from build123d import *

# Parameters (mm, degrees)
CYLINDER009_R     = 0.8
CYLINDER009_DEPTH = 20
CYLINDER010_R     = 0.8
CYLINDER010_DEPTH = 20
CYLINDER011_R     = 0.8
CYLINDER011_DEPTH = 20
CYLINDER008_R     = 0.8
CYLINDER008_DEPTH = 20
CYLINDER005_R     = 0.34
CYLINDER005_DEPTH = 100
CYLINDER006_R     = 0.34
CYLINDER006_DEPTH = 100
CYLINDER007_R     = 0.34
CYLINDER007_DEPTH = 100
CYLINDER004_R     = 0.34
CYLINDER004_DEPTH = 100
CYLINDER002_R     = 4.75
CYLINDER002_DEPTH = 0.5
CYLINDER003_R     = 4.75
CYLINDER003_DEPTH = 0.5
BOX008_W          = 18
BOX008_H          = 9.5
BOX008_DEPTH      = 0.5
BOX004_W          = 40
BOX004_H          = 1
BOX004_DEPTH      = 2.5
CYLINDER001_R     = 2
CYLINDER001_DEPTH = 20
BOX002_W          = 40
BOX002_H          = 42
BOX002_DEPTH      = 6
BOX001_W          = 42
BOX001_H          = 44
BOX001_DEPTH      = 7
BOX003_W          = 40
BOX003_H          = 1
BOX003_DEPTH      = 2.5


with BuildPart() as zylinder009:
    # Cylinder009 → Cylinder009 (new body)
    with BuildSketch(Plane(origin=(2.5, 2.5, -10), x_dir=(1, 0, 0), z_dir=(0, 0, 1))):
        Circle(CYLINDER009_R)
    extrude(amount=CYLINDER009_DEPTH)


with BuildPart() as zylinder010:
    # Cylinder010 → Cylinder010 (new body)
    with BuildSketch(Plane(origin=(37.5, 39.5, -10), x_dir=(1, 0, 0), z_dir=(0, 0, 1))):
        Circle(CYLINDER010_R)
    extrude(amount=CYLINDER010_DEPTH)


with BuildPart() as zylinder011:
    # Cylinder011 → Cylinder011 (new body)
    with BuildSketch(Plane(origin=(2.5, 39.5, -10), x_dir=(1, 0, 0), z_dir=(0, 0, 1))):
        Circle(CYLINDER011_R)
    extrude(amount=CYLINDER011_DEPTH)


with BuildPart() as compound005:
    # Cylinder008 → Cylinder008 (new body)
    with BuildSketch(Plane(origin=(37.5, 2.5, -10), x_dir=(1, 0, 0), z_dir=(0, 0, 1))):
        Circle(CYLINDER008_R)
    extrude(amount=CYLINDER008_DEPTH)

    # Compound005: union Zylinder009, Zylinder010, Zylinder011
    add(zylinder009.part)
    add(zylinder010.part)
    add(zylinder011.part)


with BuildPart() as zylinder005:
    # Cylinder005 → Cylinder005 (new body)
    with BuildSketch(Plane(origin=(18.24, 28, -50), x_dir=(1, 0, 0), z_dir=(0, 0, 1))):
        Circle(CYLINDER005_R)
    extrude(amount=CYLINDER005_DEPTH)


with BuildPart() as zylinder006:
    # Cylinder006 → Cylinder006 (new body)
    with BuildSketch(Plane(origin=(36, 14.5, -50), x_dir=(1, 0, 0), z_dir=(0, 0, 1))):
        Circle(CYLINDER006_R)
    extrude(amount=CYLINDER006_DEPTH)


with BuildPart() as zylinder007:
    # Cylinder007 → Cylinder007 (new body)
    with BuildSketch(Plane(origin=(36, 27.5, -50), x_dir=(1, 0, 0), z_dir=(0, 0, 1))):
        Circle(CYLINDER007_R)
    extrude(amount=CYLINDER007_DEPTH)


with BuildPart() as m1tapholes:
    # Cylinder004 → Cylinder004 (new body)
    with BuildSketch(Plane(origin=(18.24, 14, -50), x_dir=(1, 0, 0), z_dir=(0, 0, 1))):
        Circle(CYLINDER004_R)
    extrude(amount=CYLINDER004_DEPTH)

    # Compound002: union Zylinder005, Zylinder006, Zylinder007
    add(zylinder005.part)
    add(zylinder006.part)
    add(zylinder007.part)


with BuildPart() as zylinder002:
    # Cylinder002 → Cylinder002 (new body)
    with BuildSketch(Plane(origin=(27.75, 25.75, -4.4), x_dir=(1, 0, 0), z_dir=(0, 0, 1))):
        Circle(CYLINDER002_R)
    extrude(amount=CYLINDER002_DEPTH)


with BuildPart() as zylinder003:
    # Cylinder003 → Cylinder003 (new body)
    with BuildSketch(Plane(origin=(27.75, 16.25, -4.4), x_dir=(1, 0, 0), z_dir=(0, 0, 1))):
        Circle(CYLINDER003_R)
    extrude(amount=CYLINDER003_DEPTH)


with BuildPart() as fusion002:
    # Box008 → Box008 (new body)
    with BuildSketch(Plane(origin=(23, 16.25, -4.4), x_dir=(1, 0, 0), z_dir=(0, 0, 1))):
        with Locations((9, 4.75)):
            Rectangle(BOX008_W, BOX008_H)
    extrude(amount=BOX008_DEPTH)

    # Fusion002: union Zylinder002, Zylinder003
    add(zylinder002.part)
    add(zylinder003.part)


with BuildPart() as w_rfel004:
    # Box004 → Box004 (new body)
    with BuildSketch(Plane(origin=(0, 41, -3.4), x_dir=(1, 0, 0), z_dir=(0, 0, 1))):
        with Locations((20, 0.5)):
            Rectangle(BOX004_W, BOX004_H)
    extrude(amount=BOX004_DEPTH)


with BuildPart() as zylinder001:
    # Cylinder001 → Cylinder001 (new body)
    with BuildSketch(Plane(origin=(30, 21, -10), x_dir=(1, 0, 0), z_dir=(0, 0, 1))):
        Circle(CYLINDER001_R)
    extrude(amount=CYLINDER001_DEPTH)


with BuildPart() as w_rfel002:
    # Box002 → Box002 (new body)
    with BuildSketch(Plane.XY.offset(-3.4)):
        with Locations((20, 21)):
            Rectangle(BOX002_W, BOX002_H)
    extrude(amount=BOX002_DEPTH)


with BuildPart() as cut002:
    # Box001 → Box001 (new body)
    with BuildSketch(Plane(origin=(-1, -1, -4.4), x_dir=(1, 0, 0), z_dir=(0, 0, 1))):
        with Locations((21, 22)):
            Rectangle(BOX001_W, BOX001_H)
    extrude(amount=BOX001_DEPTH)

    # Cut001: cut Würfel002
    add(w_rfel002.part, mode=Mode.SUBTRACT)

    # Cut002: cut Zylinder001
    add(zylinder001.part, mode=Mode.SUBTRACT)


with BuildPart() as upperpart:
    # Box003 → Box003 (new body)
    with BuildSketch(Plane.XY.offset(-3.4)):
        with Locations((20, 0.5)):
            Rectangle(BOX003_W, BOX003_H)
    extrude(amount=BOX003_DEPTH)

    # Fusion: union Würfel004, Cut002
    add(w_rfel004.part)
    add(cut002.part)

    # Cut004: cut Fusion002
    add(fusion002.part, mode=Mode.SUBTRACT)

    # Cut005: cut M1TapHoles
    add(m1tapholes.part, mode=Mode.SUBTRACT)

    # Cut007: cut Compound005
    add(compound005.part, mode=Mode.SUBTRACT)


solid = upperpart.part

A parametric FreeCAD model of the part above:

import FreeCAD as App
import Part
import Sketcher
Q = App.Units.Quantity


def add_polygon(sketch, points):
    """Adds a closed chain of lines whose ends are joined by coincident constraints."""
    first, n = sketch.GeometryCount, len(points)
    for a, b in zip(points, points[1:] + points[:1]):
        sketch.addGeometry(Part.LineSegment(App.Vector(*a, 0), App.Vector(*b, 0)), False)
    for i in range(n):
        sketch.addConstraint(Sketcher.Constraint("Coincident", first + i, 2, first + (i + 1) % n, 1))

doc = App.newDocument("Part")
params = doc.addObject("Spreadsheet::Sheet", "Params")
for row, (alias, value) in enumerate([
    ("sketch1_diameter", "1.6 mm"),
    ("pad1_length", "20 mm"),
    ("sketch2_diameter", "1.6 mm"),
    ("pad2_length", "20 mm"),
    ("sketch3_diameter", "1.6 mm"),
    ("pad3_length", "20 mm"),
    ("sketch4_diameter", "1.6 mm"),
    ("pad4_length", "20 mm"),
    ("sketch5_diameter", "0.68 mm"),
    ("pad5_length", "100 mm"),
    ("sketch6_diameter", "0.68 mm"),
    ("pad6_length", "100 mm"),
    ("sketch7_diameter", "0.68 mm"),
    ("pad7_length", "100 mm"),
    ("sketch8_diameter", "0.68 mm"),
    ("pad8_length", "100 mm"),
    ("sketch9_diameter", "9.5 mm"),
    ("pad9_length", "0.5 mm"),
    ("sketch10_diameter", "9.5 mm"),
    ("pad10_length", "0.5 mm"),
    ("sketch11_width", "18 mm"),
    ("sketch11_height", "9.5 mm"),
    ("pad11_length", "0.5 mm"),
    ("sketch12_width", "40 mm"),
    ("sketch12_height", "1 mm"),
    ("pad12_length", "2.5 mm"),
    ("sketch13_diameter", "4 mm"),
    ("pad13_length", "20 mm"),
    ("sketch14_width", "40 mm"),
    ("sketch14_height", "42 mm"),
    ("pad14_length", "6 mm"),
    ("sketch15_width", "42 mm"),
    ("sketch15_height", "44 mm"),
    ("pad15_length", "7 mm"),
    ("sketch16_width", "40 mm"),
    ("sketch16_height", "1 mm"),
    ("pad16_length", "2.5 mm"),
], start=1):
    params.set(f"A{row}", alias)
    params.set(f"B{row}", "=" + value)
    params.setAlias(f"B{row}", alias)

body = doc.addObject("PartDesign::Body", "Body")

sketch1 = body.newObject("Sketcher::SketchObject", "Sketch")
sketch1.AttachmentSupport = (doc.getObject("XY_Plane"), [""])
sketch1.MapMode = "FlatFace"
sketch1.AttachmentOffset = App.Placement(App.Vector(0, 0, -10), App.Rotation())
sketch1.addGeometry(Part.Circle(App.Vector(2.5, 2.5, 0), App.Vector(0, 0, 1), 0.8), False)
sketch1.addConstraint([
    Sketcher.Constraint("Diameter", 0, Q("1.6 mm")),
    Sketcher.Constraint("DistanceX", -1, 1, 0, 3, Q("2.5 mm")),
    Sketcher.Constraint("DistanceY", -1, 1, 0, 3, Q("2.5 mm")),
])
sketch1.setExpression("Constraints[0]", "Params.sketch1_diameter")
pad1 = body.newObject("PartDesign::Pad", "Pad")
pad1.Profile = sketch1
pad1.setExpression("Length", "Params.pad1_length")
body2 = doc.addObject("PartDesign::Body", "Body001")

sketch2 = body2.newObject("Sketcher::SketchObject", "Sketch001")
sketch2.AttachmentSupport = (doc.getObject("XY_Plane001"), [""])
sketch2.MapMode = "FlatFace"
sketch2.AttachmentOffset = App.Placement(App.Vector(0, 0, -10), App.Rotation())
sketch2.addGeometry(Part.Circle(App.Vector(37.5, 39.5, 0), App.Vector(0, 0, 1), 0.8), False)
sketch2.addConstraint([
    Sketcher.Constraint("Diameter", 0, Q("1.6 mm")),
    Sketcher.Constraint("DistanceX", -1, 1, 0, 3, Q("37.5 mm")),
    Sketcher.Constraint("DistanceY", -1, 1, 0, 3, Q("39.5 mm")),
])
sketch2.setExpression("Constraints[0]", "Params.sketch2_diameter")
pad2 = body2.newObject("PartDesign::Pad", "Pad001")
pad2.Profile = sketch2
pad2.setExpression("Length", "Params.pad2_length")
body3 = doc.addObject("PartDesign::Body", "Body002")

sketch3 = body3.newObject("Sketcher::SketchObject", "Sketch002")
sketch3.AttachmentSupport = (doc.getObject("XY_Plane002"), [""])
sketch3.MapMode = "FlatFace"
sketch3.AttachmentOffset = App.Placement(App.Vector(0, 0, -10), App.Rotation())
sketch3.addGeometry(Part.Circle(App.Vector(2.5, 39.5, 0), App.Vector(0, 0, 1), 0.8), False)
sketch3.addConstraint([
    Sketcher.Constraint("Diameter", 0, Q("1.6 mm")),
    Sketcher.Constraint("DistanceX", -1, 1, 0, 3, Q("2.5 mm")),
    Sketcher.Constraint("DistanceY", -1, 1, 0, 3, Q("39.5 mm")),
])
sketch3.setExpression("Constraints[0]", "Params.sketch3_diameter")
pad3 = body3.newObject("PartDesign::Pad", "Pad002")
pad3.Profile = sketch3
pad3.setExpression("Length", "Params.pad3_length")
body4 = doc.addObject("PartDesign::Body", "Body003")
body4.AllowCompound = True

sketch4 = body4.newObject("Sketcher::SketchObject", "Sketch003")
sketch4.AttachmentSupport = (doc.getObject("XY_Plane003"), [""])
sketch4.MapMode = "FlatFace"
sketch4.AttachmentOffset = App.Placement(App.Vector(0, 0, -10), App.Rotation())
sketch4.addGeometry(Part.Circle(App.Vector(37.5, 2.5, 0), App.Vector(0, 0, 1), 0.8), False)
sketch4.addConstraint([
    Sketcher.Constraint("Diameter", 0, Q("1.6 mm")),
    Sketcher.Constraint("DistanceX", -1, 1, 0, 3, Q("37.5 mm")),
    Sketcher.Constraint("DistanceY", -1, 1, 0, 3, Q("2.5 mm")),
])
sketch4.setExpression("Constraints[0]", "Params.sketch4_diameter")
pad4 = body4.newObject("PartDesign::Pad", "Pad003")
pad4.Profile = sketch4
pad4.setExpression("Length", "Params.pad4_length")
doc.recompute()

boolean = body4.newObject("PartDesign::Boolean", "Boolean")
boolean.Type = "Fuse"
boolean.addObjects([body])
doc.recompute()

boolean2 = body4.newObject("PartDesign::Boolean", "Boolean001")
boolean2.Type = "Fuse"
boolean2.addObjects([body2])
doc.recompute()

boolean3 = body4.newObject("PartDesign::Boolean", "Boolean002")
boolean3.Type = "Fuse"
boolean3.addObjects([body3])
body5 = doc.addObject("PartDesign::Body", "Body004")

sketch5 = body5.newObject("Sketcher::SketchObject", "Sketch004")
sketch5.AttachmentSupport = (doc.getObject("XY_Plane004"), [""])
sketch5.MapMode = "FlatFace"
sketch5.AttachmentOffset = App.Placement(App.Vector(0, 0, -50), App.Rotation())
sketch5.addGeometry(Part.Circle(App.Vector(18.24, 28, 0), App.Vector(0, 0, 1), 0.34), False)
sketch5.addConstraint([
    Sketcher.Constraint("Diameter", 0, Q("0.68 mm")),
    Sketcher.Constraint("DistanceY", -1, 1, 0, 3, Q("28 mm")),
    Sketcher.Constraint("DistanceX", -1, 1, 0, 3, Q("18.24 mm")),
])
sketch5.setExpression("Constraints[0]", "Params.sketch5_diameter")
pad5 = body5.newObject("PartDesign::Pad", "Pad004")
pad5.Profile = sketch5
pad5.setExpression("Length", "Params.pad5_length")
body6 = doc.addObject("PartDesign::Body", "Body005")

sketch6 = body6.newObject("Sketcher::SketchObject", "Sketch005")
sketch6.AttachmentSupport = (doc.getObject("XY_Plane005"), [""])
sketch6.MapMode = "FlatFace"
sketch6.AttachmentOffset = App.Placement(App.Vector(0, 0, -50), App.Rotation())
sketch6.addGeometry(Part.Circle(App.Vector(36, 14.5, 0), App.Vector(0, 0, 1), 0.34), False)
sketch6.addConstraint([
    Sketcher.Constraint("Diameter", 0, Q("0.68 mm")),
    Sketcher.Constraint("DistanceX", -1, 1, 0, 3, Q("36 mm")),
    Sketcher.Constraint("DistanceY", -1, 1, 0, 3, Q("14.5 mm")),
])
sketch6.setExpression("Constraints[0]", "Params.sketch6_diameter")
pad6 = body6.newObject("PartDesign::Pad", "Pad005")
pad6.Profile = sketch6
pad6.setExpression("Length", "Params.pad6_length")
body7 = doc.addObject("PartDesign::Body", "Body006")

sketch7 = body7.newObject("Sketcher::SketchObject", "Sketch006")
sketch7.AttachmentSupport = (doc.getObject("XY_Plane006"), [""])
sketch7.MapMode = "FlatFace"
sketch7.AttachmentOffset = App.Placement(App.Vector(0, 0, -50), App.Rotation())
sketch7.addGeometry(Part.Circle(App.Vector(36, 27.5, 0), App.Vector(0, 0, 1), 0.34), False)
sketch7.addConstraint([
    Sketcher.Constraint("Diameter", 0, Q("0.68 mm")),
    Sketcher.Constraint("DistanceX", -1, 1, 0, 3, Q("36 mm")),
    Sketcher.Constraint("DistanceY", -1, 1, 0, 3, Q("27.5 mm")),
])
sketch7.setExpression("Constraints[0]", "Params.sketch7_diameter")
pad7 = body7.newObject("PartDesign::Pad", "Pad006")
pad7.Profile = sketch7
pad7.setExpression("Length", "Params.pad7_length")
body8 = doc.addObject("PartDesign::Body", "Body007")
body8.AllowCompound = True

sketch8 = body8.newObject("Sketcher::SketchObject", "Sketch007")
sketch8.AttachmentSupport = (doc.getObject("XY_Plane007"), [""])
sketch8.MapMode = "FlatFace"
sketch8.AttachmentOffset = App.Placement(App.Vector(0, 0, -50), App.Rotation())
sketch8.addGeometry(Part.Circle(App.Vector(18.24, 14, 0), App.Vector(0, 0, 1), 0.34), False)
sketch8.addConstraint([
    Sketcher.Constraint("Diameter", 0, Q("0.68 mm")),
    Sketcher.Constraint("DistanceY", -1, 1, 0, 3, Q("14 mm")),
    Sketcher.Constraint("DistanceX", -1, 1, 0, 3, Q("18.24 mm")),
])
sketch8.setExpression("Constraints[0]", "Params.sketch8_diameter")
pad8 = body8.newObject("PartDesign::Pad", "Pad007")
pad8.Profile = sketch8
pad8.setExpression("Length", "Params.pad8_length")
doc.recompute()

boolean4 = body8.newObject("PartDesign::Boolean", "Boolean003")
boolean4.Type = "Fuse"
boolean4.addObjects([body5])
doc.recompute()

boolean5 = body8.newObject("PartDesign::Boolean", "Boolean004")
boolean5.Type = "Fuse"
boolean5.addObjects([body6])
doc.recompute()

boolean6 = body8.newObject("PartDesign::Boolean", "Boolean005")
boolean6.Type = "Fuse"
boolean6.addObjects([body7])
body9 = doc.addObject("PartDesign::Body", "Body008")

sketch9 = body9.newObject("Sketcher::SketchObject", "Sketch008")
sketch9.AttachmentSupport = (doc.getObject("XY_Plane008"), [""])
sketch9.MapMode = "FlatFace"
sketch9.AttachmentOffset = App.Placement(App.Vector(0, 0, -4.4), App.Rotation())
sketch9.addGeometry(Part.Circle(App.Vector(27.75, 25.75, 0), App.Vector(0, 0, 1), 4.75), False)
sketch9.addConstraint([
    Sketcher.Constraint("Diameter", 0, Q("9.5 mm")),
    Sketcher.Constraint("DistanceX", -1, 1, 0, 3, Q("27.75 mm")),
    Sketcher.Constraint("DistanceY", -1, 1, 0, 3, Q("25.75 mm")),
])
sketch9.setExpression("Constraints[0]", "Params.sketch9_diameter")
pad9 = body9.newObject("PartDesign::Pad", "Pad008")
pad9.Profile = sketch9
pad9.setExpression("Length", "Params.pad9_length")
body10 = doc.addObject("PartDesign::Body", "Body009")

sketch10 = body10.newObject("Sketcher::SketchObject", "Sketch009")
sketch10.AttachmentSupport = (doc.getObject("XY_Plane009"), [""])
sketch10.MapMode = "FlatFace"
sketch10.AttachmentOffset = App.Placement(App.Vector(0, 0, -4.4), App.Rotation())
sketch10.addGeometry(Part.Circle(App.Vector(27.75, 16.25, 0), App.Vector(0, 0, 1), 4.75), False)
sketch10.addConstraint([
    Sketcher.Constraint("Diameter", 0, Q("9.5 mm")),
    Sketcher.Constraint("DistanceX", -1, 1, 0, 3, Q("27.75 mm")),
    Sketcher.Constraint("DistanceY", -1, 1, 0, 3, Q("16.25 mm")),
])
sketch10.setExpression("Constraints[0]", "Params.sketch10_diameter")
pad10 = body10.newObject("PartDesign::Pad", "Pad009")
pad10.Profile = sketch10
pad10.setExpression("Length", "Params.pad10_length")
body11 = doc.addObject("PartDesign::Body", "Body010")

sketch11 = body11.newObject("Sketcher::SketchObject", "Sketch010")
sketch11.AttachmentSupport = (doc.getObject("XY_Plane010"), [""])
sketch11.MapMode = "FlatFace"
sketch11.AttachmentOffset = App.Placement(App.Vector(0, 0, -4.4), App.Rotation())
add_polygon(sketch11, [(23, 25.75), (23, 16.25), (41, 16.25), (41, 25.75)])
sketch11.addConstraint([
    Sketcher.Constraint("Vertical", 0),
    Sketcher.Constraint("Horizontal", 1),
    Sketcher.Constraint("Vertical", 2),
    Sketcher.Constraint("Horizontal", 3),
    Sketcher.Constraint("DistanceX", 1, 1, 1, 2, Q("18 mm")),
    Sketcher.Constraint("DistanceY", 0, 2, 0, 1, Q("9.5 mm")),
    Sketcher.Constraint("DistanceX", -1, 1, 0, 2, Q("23 mm")),
    Sketcher.Constraint("DistanceY", -1, 1, 0, 2, Q("16.25 mm")),
])
sketch11.setExpression("Constraints[8]", "Params.sketch11_width")
sketch11.setExpression("Constraints[9]", "Params.sketch11_height")
pad11 = body11.newObject("PartDesign::Pad", "Pad010")
pad11.Profile = sketch11
pad11.setExpression("Length", "Params.pad11_length")
doc.recompute()

boolean7 = body11.newObject("PartDesign::Boolean", "Boolean006")
boolean7.Type = "Fuse"
boolean7.addObjects([body9])
doc.recompute()

boolean8 = body11.newObject("PartDesign::Boolean", "Boolean007")
boolean8.Type = "Fuse"
boolean8.addObjects([body10])
body12 = doc.addObject("PartDesign::Body", "Body011")

sketch12 = body12.newObject("Sketcher::SketchObject", "Sketch011")
sketch12.AttachmentSupport = (doc.getObject("XY_Plane011"), [""])
sketch12.MapMode = "FlatFace"
sketch12.AttachmentOffset = App.Placement(App.Vector(0, 0, -3.4), App.Rotation())
add_polygon(sketch12, [(0, 42), (0, 41), (40, 41), (40, 42)])
sketch12.addConstraint([
    Sketcher.Constraint("Vertical", 0),
    Sketcher.Constraint("Horizontal", 1),
    Sketcher.Constraint("Vertical", 2),
    Sketcher.Constraint("Horizontal", 3),
    Sketcher.Constraint("PointOnObject", 0, 2, -2),
    Sketcher.Constraint("DistanceX", 1, 1, 1, 2, Q("40 mm")),
    Sketcher.Constraint("DistanceY", 0, 2, 0, 1, Q("1 mm")),
    Sketcher.Constraint("DistanceY", -1, 1, 0, 2, Q("41 mm")),
])
sketch12.setExpression("Constraints[9]", "Params.sketch12_width")
sketch12.setExpression("Constraints[10]", "Params.sketch12_height")
pad12 = body12.newObject("PartDesign::Pad", "Pad011")
pad12.Profile = sketch12
pad12.setExpression("Length", "Params.pad12_length")
body13 = doc.addObject("PartDesign::Body", "Body012")

sketch13 = body13.newObject("Sketcher::SketchObject", "Sketch012")
sketch13.AttachmentSupport = (doc.getObject("XY_Plane012"), [""])
sketch13.MapMode = "FlatFace"
sketch13.AttachmentOffset = App.Placement(App.Vector(0, 0, -10), App.Rotation())
sketch13.addGeometry(Part.Circle(App.Vector(30, 21, 0), App.Vector(0, 0, 1), 2), False)
sketch13.addConstraint([
    Sketcher.Constraint("Diameter", 0, Q("4 mm")),
    Sketcher.Constraint("DistanceX", -1, 1, 0, 3, Q("30 mm")),
    Sketcher.Constraint("DistanceY", -1, 1, 0, 3, Q("21 mm")),
])
sketch13.setExpression("Constraints[0]", "Params.sketch13_diameter")
pad13 = body13.newObject("PartDesign::Pad", "Pad012")
pad13.Profile = sketch13
pad13.setExpression("Length", "Params.pad13_length")
body14 = doc.addObject("PartDesign::Body", "Body013")

sketch14 = body14.newObject("Sketcher::SketchObject", "Sketch013")
sketch14.AttachmentSupport = (doc.getObject("XY_Plane013"), [""])
sketch14.MapMode = "FlatFace"
sketch14.AttachmentOffset = App.Placement(App.Vector(0, 0, -3.4), App.Rotation())
add_polygon(sketch14, [(0, 42), (0, 0), (40, 0), (40, 42)])
sketch14.addConstraint([
    Sketcher.Constraint("Vertical", 0),
    Sketcher.Constraint("Horizontal", 1),
    Sketcher.Constraint("Vertical", 2),
    Sketcher.Constraint("Horizontal", 3),
    Sketcher.Constraint("Coincident", 0, 2, -1, 1),
    Sketcher.Constraint("DistanceX", 1, 1, 1, 2, Q("40 mm")),
    Sketcher.Constraint("DistanceY", 0, 2, 0, 1, Q("42 mm")),
])
sketch14.setExpression("Constraints[9]", "Params.sketch14_width")
sketch14.setExpression("Constraints[10]", "Params.sketch14_height")
pad14 = body14.newObject("PartDesign::Pad", "Pad013")
pad14.Profile = sketch14
pad14.setExpression("Length", "Params.pad14_length")
body15 = doc.addObject("PartDesign::Body", "Body014")

sketch15 = body15.newObject("Sketcher::SketchObject", "Sketch014")
sketch15.AttachmentSupport = (doc.getObject("XY_Plane014"), [""])
sketch15.MapMode = "FlatFace"
sketch15.AttachmentOffset = App.Placement(App.Vector(0, 0, -4.4), App.Rotation())
add_polygon(sketch15, [(-1, 43), (-1, -1), (41, -1), (41, 43)])
sketch15.addConstraint([
    Sketcher.Constraint("Vertical", 0),
    Sketcher.Constraint("Horizontal", 1),
    Sketcher.Constraint("Vertical", 2),
    Sketcher.Constraint("Horizontal", 3),
    Sketcher.Constraint("DistanceX", 1, 1, 1, 2, Q("42 mm")),
    Sketcher.Constraint("DistanceY", 0, 2, 0, 1, Q("44 mm")),
    Sketcher.Constraint("DistanceX", 0, 2, -1, 1, Q("1 mm")),
    Sketcher.Constraint("DistanceY", 0, 2, -1, 1, Q("1 mm")),
])
sketch15.setExpression("Constraints[8]", "Params.sketch15_width")
sketch15.setExpression("Constraints[9]", "Params.sketch15_height")
pad15 = body15.newObject("PartDesign::Pad", "Pad014")
pad15.Profile = sketch15
pad15.setExpression("Length", "Params.pad15_length")
doc.recompute()

boolean9 = body15.newObject("PartDesign::Boolean", "Boolean008")
boolean9.Type = "Cut"
boolean9.addObjects([body14])
doc.recompute()

boolean10 = body15.newObject("PartDesign::Boolean", "Boolean009")
boolean10.Type = "Cut"
boolean10.addObjects([body13])
body16 = doc.addObject("PartDesign::Body", "Body015")
body16.AllowCompound = True

sketch16 = body16.newObject("Sketcher::SketchObject", "Sketch015")
sketch16.AttachmentSupport = (doc.getObject("XY_Plane015"), [""])
sketch16.MapMode = "FlatFace"
sketch16.AttachmentOffset = App.Placement(App.Vector(0, 0, -3.4), App.Rotation())
add_polygon(sketch16, [(0, 1), (0, 0), (40, 0), (40, 1)])
sketch16.addConstraint([
    Sketcher.Constraint("Vertical", 0),
    Sketcher.Constraint("Horizontal", 1),
    Sketcher.Constraint("Vertical", 2),
    Sketcher.Constraint("Horizontal", 3),
    Sketcher.Constraint("Coincident", 0, 2, -1, 1),
    Sketcher.Constraint("DistanceX", 1, 1, 1, 2, Q("40 mm")),
    Sketcher.Constraint("DistanceY", 0, 2, 0, 1, Q("1 mm")),
])
sketch16.setExpression("Constraints[9]", "Params.sketch16_width")
sketch16.setExpression("Constraints[10]", "Params.sketch16_height")
pad16 = body16.newObject("PartDesign::Pad", "Pad015")
pad16.Profile = sketch16
pad16.setExpression("Length", "Params.pad16_length")
doc.recompute()

boolean11 = body16.newObject("PartDesign::Boolean", "Boolean010")
boolean11.Type = "Fuse"
boolean11.addObjects([body12])
doc.recompute()

boolean12 = body16.newObject("PartDesign::Boolean", "Boolean011")
boolean12.Type = "Fuse"
boolean12.addObjects([body15])
doc.recompute()

boolean13 = body16.newObject("PartDesign::Boolean", "Boolean012")
boolean13.Type = "Cut"
boolean13.addObjects([body11])
doc.recompute()

boolean14 = body16.newObject("PartDesign::Boolean", "Boolean013")
boolean14.Type = "Cut"
boolean14.addObjects([body8])
doc.recompute()

boolean15 = body16.newObject("PartDesign::Boolean", "Boolean014")
boolean15.Type = "Cut"
boolean15.addObjects([body4])

doc.recompute()
